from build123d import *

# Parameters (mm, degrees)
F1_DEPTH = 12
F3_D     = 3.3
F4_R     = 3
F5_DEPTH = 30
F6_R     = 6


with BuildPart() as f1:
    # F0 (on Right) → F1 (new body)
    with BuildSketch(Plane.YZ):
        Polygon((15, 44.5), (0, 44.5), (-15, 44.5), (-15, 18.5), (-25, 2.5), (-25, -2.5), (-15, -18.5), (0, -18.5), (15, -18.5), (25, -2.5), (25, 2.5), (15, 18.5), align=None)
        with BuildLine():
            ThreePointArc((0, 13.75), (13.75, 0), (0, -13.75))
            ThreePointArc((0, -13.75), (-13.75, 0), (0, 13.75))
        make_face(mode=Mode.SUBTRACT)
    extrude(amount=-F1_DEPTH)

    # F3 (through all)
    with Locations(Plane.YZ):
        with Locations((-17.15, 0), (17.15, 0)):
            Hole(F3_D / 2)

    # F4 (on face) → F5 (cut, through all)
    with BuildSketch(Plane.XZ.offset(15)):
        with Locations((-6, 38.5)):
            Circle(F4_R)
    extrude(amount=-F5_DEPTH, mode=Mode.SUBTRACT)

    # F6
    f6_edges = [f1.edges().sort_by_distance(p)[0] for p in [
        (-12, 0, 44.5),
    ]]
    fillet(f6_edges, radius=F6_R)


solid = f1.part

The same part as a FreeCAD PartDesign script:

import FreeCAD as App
import Part
import Sketcher


def edges_at(feature, points):
    """Names of the edges that pass closest to the given points."""
    edges = feature.Shape.Edges
    near = lambda p: min(range(len(edges)), key=lambda i: edges[i].distToShape(Part.Vertex(*p))[0])
    return sorted({f"Edge{near(p) + 1}" for p in points})

doc = App.newDocument("Part")
body = doc.addObject("PartDesign::Body", "Body")

# Sketch on YZ plane
sketch1 = body.newObject("Sketcher::SketchObject", "Sketch")
sketch1.AttachmentSupport = (doc.getObject("YZ_Plane"), [""])
sketch1.MapMode = "FlatFace"
sketch1.addGeometry([
    Part.LineSegment(App.Vector(15, 44.5, 0), App.Vector(-15, 44.5, 0)),  # 0
    Part.LineSegment(App.Vector(-15, 44.5, 0), App.Vector(-15, 18.5, 0)),  # 1
    Part.LineSegment(App.Vector(-15, 18.5, 0), App.Vector(-25, 2.5, 0)),  # 2
    Part.LineSegment(App.Vector(-25, 2.5, 0), App.Vector(-25, -2.5, 0)),  # 3
    Part.LineSegment(App.Vector(-25, -2.5, 0), App.Vector(-15, -18.5, 0)),  # 4
    Part.LineSegment(App.Vector(-15, -18.5, 0), App.Vector(15, -18.5, 0)),  # 5
    Part.LineSegment(App.Vector(15, -18.5, 0), App.Vector(25, -2.5, 0)),  # 6
    Part.LineSegment(App.Vector(25, -2.5, 0), App.Vector(25, 2.5, 0)),  # 7
    Part.LineSegment(App.Vector(25, 2.5, 0), App.Vector(15, 18.5, 0)),  # 8
    Part.LineSegment(App.Vector(15, 18.5, 0), App.Vector(15, 44.5, 0)),  # 9
    Part.Circle(App.Vector(0, 0, 0), App.Vector(0, 0, 1), 13.75),  # 10
], False)
sketch1.addConstraint([
    Sketcher.Constraint("Coincident", 0, 2, 1, 1),
    Sketcher.Constraint("Coincident", 1, 2, 2, 1),
    Sketcher.Constraint("Coincident", 2, 2, 3, 1),
    Sketcher.Constraint("Coincident", 3, 2, 4, 1),
    Sketcher.Constraint("Coincident", 4, 2, 5, 1),
    Sketcher.Constraint("Coincident", 5, 2, 6, 1),
    Sketcher.Constraint("Coincident", 6, 2, 7, 1),
    Sketcher.Constraint("Coincident", 7, 2, 8, 1),
    Sketcher.Constraint("Coincident", 8, 2, 9, 1),
    Sketcher.Constraint("Coincident", 9, 2, 0, 1),
    Sketcher.Constraint("Horizontal", 0),
    Sketcher.Constraint("Vertical", 1),
    Sketcher.Constraint("Vertical", 3),
    Sketcher.Constraint("Horizontal", 5),
    Sketcher.Constraint("Vertical", 7),
    Sketcher.Constraint("Vertical", 9),
    Sketcher.Constraint("Coincident", 10, 3, -1, 1),
    Sketcher.Constraint("Symmetric", 1, 2, 5, 2, -1, 1),
    Sketcher.Constraint("Symmetric", 2, 2, 6, 2, -1, 1),
    Sketcher.Constraint("Symmetric", 4, 2, 8, 2, -1, 1),
    Sketcher.Constraint("Parallel", 4, 8),
    Sketcher.Constraint("Horizontal", 3, 2, 6, 2),
    Sketcher.Constraint("Vertical", 1, 2, 4, 2),
    Sketcher.Constraint("Diameter", 10, 27.5),
    Sketcher.Constraint("DistanceX", 0, 2, 0, 1, 30.0),
    Sketcher.Constraint("DistanceY", 1, 2, 1, 1, 26.0),
    Sketcher.Constraint("DistanceY", 3, 2, 3, 1, 5.0),
    Sketcher.Constraint("DistanceX", 2, 2, -1, 1, 25.0),
    Sketcher.Constraint("DistanceY", 2, 2, 1, 2, 16.0),
])
pad1 = body.newObject("PartDesign::Pad", "Pad")
pad1.Profile = sketch1
pad1.Length = 12
pad1.Reversed = True

# Sketch on YZ plane
sketch2 = body.newObject("Sketcher::SketchObject", "Sketch001")
sketch2.AttachmentSupport = (doc.getObject("YZ_Plane"), [""])
sketch2.MapMode = "FlatFace"
sketch2.addGeometry([
    Part.Circle(App.Vector(-17.15, 0, 0), App.Vector(0, 0, 1), 1.65),
    Part.Circle(App.Vector(17.15, 0, 0), App.Vector(0, 0, 1), 1.65),
], False)
sketch2.addConstraint([
    Sketcher.Constraint("Equal", 0, 1),
    Sketcher.Constraint("Symmetric", 0, 3, 1, 3, -1, 1),
    Sketcher.Constraint("PointOnObject", 0, 3, -1),
    Sketcher.Constraint("Diameter", 0, 3.3),
    Sketcher.Constraint("DistanceX", 0, 3, 1, 3, 34.3),
])
doc.recompute()
hole = body.newObject("PartDesign::Hole", "Hole")
hole.Profile = sketch2
hole.ThreadType = "None"
hole.Diameter = 3.3
hole.DepthType = "ThroughAll"

# Sketch on XZ plane
sketch3 = body.newObject("Sketcher::SketchObject", "Sketch002")
sketch3.AttachmentSupport = (doc.getObject("XZ_Plane"), [""])
sketch3.MapMode = "FlatFace"
sketch3.AttachmentOffset = App.Placement(App.Vector(0, 0, 15), App.Rotation())
sketch3.addGeometry(Part.Circle(App.Vector(-6, 38.5, 0), App.Vector(0, 0, 1), 3), False)
sketch3.addConstraint([
    Sketcher.Constraint("Diameter", 0, 6.0),
    Sketcher.Constraint("DistanceX", 0, 3, -1, 1, 6.0),
    Sketcher.Constraint("DistanceY", -1, 1, 0, 3, 38.5),
])
pocket1 = body.newObject("PartDesign::Pocket", "Pocket")
pocket1.Profile = sketch3
pocket1.Type = "ThroughAll"
doc.recompute()

fillet = body.newObject("PartDesign::Fillet", "Fillet")
fillet.Base = (pocket1, edges_at(pocket1, [(-12, 0, 44.5)]))
fillet.Radius = 6

doc.recompute()
